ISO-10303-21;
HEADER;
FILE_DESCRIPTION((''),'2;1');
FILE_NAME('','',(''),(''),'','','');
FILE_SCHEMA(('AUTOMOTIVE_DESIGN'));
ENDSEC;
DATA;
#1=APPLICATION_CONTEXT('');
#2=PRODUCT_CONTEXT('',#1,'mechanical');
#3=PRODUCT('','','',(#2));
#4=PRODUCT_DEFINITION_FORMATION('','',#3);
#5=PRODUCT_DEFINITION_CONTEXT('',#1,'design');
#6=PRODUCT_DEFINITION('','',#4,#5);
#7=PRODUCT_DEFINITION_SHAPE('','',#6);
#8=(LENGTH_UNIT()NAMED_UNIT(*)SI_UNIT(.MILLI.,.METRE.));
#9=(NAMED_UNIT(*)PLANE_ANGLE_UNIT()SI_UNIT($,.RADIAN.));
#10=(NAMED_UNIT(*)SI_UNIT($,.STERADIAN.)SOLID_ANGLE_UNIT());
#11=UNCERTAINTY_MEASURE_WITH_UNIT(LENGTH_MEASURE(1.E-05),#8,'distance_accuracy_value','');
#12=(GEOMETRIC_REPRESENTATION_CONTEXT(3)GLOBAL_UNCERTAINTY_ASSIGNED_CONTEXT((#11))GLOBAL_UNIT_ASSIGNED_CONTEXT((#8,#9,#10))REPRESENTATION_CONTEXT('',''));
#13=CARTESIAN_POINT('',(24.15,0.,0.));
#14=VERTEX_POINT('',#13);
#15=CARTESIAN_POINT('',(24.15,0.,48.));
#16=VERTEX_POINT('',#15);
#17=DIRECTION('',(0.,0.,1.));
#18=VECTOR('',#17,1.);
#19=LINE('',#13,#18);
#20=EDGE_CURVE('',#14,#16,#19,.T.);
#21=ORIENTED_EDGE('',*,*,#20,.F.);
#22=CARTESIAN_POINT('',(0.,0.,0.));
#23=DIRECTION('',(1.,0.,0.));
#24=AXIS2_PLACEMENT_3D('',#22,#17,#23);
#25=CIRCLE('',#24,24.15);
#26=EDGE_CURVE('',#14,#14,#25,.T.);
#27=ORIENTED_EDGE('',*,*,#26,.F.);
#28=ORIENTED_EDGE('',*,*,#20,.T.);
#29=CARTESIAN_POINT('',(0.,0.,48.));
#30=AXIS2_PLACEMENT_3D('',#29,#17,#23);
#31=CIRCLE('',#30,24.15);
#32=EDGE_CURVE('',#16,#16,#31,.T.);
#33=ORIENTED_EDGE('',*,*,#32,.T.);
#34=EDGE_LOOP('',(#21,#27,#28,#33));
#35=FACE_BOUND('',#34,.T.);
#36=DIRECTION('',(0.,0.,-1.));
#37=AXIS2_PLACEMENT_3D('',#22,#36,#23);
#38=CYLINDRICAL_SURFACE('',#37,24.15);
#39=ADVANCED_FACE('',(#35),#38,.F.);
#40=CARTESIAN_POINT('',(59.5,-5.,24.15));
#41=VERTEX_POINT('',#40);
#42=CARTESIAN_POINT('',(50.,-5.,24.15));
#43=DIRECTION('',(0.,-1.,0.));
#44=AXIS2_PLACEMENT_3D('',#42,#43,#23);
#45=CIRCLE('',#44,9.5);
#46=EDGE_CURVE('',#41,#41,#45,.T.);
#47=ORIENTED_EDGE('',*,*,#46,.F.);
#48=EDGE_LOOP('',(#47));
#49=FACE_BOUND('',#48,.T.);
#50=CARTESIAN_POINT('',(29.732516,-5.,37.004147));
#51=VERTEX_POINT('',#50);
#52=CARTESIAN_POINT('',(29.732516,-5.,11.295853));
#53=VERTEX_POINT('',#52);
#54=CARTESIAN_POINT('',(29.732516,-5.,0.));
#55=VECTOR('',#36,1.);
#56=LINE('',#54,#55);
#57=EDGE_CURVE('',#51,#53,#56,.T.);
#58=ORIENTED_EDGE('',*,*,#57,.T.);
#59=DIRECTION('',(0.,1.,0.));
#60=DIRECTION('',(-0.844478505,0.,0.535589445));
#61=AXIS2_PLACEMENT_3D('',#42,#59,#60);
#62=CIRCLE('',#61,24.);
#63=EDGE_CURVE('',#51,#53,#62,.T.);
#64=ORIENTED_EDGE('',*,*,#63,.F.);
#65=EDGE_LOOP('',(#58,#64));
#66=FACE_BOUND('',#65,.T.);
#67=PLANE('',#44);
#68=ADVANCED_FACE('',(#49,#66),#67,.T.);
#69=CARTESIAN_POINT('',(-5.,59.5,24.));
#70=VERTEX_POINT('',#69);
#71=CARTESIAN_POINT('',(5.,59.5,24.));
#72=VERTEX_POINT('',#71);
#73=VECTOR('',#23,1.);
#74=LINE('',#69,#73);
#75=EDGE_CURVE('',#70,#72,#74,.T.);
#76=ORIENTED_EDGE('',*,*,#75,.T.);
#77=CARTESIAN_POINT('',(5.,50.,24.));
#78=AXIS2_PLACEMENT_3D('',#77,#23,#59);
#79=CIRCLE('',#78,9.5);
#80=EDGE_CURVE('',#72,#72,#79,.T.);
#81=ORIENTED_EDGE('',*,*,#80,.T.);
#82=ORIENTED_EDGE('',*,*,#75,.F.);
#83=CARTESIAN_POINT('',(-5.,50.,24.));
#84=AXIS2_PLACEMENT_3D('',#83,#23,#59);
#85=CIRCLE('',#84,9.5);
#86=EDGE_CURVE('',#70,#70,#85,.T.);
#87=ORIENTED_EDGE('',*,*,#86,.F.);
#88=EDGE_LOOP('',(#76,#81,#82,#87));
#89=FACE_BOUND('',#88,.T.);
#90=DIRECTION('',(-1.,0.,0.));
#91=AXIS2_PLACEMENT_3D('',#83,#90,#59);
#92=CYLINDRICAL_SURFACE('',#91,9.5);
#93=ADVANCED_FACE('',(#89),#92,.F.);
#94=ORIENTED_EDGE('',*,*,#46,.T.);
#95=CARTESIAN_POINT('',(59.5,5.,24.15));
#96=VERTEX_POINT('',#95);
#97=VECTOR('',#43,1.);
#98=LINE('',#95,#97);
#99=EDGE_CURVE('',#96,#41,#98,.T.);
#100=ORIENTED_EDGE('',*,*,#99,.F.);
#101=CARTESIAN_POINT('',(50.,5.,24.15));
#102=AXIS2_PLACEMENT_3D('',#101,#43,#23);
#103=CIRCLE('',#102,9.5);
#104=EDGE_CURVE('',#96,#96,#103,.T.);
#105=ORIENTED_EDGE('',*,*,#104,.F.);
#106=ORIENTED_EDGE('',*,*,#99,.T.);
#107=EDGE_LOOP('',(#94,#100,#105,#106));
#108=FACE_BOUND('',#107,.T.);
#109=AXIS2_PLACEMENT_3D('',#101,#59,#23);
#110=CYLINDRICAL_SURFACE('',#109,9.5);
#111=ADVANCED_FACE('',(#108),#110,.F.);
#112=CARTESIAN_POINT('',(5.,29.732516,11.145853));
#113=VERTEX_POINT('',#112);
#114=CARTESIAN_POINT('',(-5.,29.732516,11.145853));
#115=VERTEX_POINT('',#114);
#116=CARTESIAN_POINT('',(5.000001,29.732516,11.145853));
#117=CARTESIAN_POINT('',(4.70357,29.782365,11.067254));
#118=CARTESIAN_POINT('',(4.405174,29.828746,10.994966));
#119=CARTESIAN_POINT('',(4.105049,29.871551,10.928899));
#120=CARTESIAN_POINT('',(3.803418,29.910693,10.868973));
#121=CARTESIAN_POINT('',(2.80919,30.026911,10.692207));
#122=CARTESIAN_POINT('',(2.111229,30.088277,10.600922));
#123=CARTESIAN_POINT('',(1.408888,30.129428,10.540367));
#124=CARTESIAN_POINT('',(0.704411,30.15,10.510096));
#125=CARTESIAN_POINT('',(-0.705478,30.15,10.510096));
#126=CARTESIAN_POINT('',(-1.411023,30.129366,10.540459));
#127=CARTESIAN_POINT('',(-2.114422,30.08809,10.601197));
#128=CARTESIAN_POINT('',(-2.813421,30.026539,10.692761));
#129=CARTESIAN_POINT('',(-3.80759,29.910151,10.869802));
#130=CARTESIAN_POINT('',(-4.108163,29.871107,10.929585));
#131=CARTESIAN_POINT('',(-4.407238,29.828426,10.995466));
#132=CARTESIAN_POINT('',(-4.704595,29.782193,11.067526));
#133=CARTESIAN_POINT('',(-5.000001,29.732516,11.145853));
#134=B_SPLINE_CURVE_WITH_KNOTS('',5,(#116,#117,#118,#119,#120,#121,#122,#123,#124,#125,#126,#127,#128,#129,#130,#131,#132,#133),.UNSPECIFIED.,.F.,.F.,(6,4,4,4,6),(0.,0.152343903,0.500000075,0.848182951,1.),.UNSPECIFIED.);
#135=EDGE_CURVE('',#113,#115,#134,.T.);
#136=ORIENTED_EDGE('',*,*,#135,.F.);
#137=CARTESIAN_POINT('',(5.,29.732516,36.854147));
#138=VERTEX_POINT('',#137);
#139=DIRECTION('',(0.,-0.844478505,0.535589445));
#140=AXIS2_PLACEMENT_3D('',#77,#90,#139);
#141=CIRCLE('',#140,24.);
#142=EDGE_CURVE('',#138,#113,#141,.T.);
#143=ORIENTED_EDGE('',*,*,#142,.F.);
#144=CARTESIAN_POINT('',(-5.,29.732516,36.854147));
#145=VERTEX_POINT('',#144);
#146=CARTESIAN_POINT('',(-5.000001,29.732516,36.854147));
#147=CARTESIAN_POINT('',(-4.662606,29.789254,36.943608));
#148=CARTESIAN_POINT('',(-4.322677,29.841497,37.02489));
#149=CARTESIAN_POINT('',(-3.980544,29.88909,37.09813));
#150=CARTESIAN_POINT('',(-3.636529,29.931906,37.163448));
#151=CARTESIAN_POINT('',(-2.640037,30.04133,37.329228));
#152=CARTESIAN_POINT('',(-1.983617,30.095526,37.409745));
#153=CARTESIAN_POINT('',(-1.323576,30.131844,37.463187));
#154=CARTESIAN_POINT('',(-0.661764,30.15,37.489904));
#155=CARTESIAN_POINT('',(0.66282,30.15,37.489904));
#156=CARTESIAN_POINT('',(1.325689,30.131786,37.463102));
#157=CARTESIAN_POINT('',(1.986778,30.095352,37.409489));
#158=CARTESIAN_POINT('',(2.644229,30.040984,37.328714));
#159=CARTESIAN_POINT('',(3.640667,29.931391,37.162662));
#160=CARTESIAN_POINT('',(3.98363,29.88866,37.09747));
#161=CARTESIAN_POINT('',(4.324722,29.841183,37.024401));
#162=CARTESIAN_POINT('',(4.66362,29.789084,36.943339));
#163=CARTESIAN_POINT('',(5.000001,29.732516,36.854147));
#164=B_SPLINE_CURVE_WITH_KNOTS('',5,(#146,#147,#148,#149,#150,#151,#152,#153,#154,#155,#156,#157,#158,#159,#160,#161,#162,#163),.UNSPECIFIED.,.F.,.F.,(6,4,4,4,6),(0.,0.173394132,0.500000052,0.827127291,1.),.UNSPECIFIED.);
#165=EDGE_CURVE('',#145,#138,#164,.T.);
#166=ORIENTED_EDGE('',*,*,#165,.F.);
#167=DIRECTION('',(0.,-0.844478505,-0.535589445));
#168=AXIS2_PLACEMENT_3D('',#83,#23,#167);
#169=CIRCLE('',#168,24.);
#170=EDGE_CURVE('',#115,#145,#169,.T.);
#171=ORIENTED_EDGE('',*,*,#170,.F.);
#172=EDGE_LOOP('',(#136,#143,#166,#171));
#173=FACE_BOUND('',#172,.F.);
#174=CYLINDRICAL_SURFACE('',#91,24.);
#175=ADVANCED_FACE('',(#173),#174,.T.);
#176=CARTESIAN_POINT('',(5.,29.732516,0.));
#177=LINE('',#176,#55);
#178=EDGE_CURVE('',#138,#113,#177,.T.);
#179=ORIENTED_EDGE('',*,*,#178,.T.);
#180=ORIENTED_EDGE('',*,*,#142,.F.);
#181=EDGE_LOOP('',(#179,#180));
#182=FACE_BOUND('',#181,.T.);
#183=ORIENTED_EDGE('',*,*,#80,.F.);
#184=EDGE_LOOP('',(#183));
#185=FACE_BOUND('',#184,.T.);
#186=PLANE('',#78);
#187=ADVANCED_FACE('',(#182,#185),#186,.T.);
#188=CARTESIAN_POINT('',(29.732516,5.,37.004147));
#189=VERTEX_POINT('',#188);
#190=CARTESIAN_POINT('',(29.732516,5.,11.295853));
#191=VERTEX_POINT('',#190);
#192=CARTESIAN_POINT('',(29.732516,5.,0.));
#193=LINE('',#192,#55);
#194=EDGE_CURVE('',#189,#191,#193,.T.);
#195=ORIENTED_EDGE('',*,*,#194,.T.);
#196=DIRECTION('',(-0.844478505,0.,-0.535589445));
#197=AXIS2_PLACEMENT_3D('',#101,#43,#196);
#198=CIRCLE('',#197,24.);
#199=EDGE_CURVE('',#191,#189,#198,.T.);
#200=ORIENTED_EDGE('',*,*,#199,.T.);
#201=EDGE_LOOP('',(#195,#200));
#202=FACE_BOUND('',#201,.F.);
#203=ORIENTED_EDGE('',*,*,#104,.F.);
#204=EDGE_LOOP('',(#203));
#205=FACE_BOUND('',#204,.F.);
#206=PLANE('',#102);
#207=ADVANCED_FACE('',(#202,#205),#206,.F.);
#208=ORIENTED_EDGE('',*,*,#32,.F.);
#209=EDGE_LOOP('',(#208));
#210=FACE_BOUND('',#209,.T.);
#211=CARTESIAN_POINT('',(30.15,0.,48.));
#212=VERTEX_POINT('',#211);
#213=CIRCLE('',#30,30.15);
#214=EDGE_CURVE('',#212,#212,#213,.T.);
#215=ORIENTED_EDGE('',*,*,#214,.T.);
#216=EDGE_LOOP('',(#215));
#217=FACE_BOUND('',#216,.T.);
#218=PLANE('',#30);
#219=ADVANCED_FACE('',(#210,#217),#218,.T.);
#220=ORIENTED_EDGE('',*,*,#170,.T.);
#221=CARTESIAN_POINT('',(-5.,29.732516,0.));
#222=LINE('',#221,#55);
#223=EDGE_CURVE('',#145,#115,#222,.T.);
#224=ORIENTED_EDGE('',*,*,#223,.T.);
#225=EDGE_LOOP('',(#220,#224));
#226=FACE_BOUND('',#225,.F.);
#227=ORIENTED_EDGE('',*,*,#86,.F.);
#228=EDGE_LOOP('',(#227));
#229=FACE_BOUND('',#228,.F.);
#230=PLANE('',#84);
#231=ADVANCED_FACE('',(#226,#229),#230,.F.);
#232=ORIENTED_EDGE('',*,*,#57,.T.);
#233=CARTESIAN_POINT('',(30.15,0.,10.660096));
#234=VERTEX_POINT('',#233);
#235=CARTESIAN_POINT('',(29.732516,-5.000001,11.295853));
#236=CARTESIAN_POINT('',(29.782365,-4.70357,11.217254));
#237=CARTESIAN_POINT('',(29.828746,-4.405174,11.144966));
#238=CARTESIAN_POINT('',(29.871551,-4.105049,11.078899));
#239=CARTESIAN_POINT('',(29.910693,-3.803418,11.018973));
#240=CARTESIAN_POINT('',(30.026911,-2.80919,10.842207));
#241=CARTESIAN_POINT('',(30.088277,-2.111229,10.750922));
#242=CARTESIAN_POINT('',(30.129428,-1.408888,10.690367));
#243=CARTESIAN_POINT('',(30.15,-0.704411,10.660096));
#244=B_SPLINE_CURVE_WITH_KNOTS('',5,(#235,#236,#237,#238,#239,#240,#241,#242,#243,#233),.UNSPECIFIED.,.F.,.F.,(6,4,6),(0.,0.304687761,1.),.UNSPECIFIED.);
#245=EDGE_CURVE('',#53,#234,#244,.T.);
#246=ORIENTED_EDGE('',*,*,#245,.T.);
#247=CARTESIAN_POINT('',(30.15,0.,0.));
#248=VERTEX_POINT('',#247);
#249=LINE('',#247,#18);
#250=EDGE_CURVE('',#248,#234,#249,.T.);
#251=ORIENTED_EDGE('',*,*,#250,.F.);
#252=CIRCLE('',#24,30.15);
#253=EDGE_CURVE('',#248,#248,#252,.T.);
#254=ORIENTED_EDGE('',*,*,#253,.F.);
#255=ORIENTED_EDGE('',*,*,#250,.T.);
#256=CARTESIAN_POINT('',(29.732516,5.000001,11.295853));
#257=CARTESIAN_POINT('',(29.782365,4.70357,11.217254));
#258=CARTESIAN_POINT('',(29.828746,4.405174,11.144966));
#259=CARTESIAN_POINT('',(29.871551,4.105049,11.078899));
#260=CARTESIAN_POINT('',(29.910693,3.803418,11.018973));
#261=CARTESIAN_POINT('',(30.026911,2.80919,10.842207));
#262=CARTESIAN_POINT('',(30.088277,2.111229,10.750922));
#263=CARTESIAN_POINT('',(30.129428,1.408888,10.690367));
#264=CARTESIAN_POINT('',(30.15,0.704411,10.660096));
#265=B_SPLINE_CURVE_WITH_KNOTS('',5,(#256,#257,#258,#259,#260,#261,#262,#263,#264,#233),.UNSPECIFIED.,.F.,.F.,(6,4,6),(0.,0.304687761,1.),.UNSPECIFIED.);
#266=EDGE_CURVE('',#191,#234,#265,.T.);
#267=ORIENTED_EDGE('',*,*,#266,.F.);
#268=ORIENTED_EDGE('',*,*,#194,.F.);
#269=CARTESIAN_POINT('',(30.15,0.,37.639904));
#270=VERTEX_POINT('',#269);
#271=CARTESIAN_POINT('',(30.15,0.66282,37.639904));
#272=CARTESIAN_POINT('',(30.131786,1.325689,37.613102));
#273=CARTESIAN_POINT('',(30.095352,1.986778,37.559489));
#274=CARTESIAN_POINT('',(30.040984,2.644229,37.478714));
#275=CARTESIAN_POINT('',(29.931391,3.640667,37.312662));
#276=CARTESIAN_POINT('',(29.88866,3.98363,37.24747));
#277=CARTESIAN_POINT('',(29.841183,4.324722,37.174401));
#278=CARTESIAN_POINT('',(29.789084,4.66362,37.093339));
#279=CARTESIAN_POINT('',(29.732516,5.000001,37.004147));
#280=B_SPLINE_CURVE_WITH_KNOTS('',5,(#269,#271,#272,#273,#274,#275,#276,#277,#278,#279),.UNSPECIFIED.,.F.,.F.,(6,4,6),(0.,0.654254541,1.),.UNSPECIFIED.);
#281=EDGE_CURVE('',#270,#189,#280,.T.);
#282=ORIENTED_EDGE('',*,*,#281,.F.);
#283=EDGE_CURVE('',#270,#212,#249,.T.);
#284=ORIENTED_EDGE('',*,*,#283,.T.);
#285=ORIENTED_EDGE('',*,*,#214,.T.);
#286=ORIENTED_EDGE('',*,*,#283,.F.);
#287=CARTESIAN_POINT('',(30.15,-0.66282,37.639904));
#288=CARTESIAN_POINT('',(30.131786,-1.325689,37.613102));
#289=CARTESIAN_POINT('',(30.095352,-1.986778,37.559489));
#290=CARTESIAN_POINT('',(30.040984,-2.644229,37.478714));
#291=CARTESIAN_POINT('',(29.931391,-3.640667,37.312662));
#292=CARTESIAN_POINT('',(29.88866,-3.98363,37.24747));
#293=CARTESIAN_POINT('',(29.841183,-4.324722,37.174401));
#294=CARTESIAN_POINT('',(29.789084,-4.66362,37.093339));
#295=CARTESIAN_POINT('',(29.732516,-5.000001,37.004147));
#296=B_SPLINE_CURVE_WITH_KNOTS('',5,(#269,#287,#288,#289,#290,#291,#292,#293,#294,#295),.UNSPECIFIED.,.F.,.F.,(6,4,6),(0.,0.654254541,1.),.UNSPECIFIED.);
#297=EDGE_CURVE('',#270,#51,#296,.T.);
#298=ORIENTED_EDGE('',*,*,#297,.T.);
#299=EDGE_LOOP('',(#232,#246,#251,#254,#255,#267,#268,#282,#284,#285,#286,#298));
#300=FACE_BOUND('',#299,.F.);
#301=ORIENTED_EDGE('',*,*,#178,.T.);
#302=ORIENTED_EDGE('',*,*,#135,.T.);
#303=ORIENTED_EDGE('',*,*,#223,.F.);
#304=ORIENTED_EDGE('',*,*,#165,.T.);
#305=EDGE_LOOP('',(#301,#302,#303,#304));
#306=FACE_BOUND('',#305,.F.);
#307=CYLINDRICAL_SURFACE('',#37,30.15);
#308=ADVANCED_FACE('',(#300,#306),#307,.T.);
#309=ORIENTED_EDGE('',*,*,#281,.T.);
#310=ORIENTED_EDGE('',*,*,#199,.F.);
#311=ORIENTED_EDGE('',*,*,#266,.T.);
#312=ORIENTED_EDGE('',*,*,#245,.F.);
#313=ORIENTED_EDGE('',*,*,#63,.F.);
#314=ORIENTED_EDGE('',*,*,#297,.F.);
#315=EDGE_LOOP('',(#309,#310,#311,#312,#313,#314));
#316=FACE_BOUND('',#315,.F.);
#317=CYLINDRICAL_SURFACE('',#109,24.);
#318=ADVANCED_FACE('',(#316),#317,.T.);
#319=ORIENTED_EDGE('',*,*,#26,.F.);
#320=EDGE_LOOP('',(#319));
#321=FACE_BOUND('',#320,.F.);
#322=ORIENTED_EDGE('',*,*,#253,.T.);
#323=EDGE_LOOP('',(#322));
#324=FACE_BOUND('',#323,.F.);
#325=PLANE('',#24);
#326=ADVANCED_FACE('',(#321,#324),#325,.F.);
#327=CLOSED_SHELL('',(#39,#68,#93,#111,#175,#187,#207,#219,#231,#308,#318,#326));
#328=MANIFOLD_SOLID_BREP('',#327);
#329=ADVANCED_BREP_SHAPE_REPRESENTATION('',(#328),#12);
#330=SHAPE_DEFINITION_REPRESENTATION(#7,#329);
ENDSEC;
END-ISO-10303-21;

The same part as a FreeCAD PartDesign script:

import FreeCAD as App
import Part
import Sketcher

V = App.Vector

doc = App.newDocument("Part")
body = doc.addObject("PartDesign::Body", "Body")

sketch1 = body.newObject("Sketcher::SketchObject", "Sketch")
sketch1.AttachmentSupport = (doc.getObject("XY_Plane"), [""])
sketch1.MapMode = "FlatFace"
sketch1.addGeometry([
    Part.Circle(V(0, 0, 0), V(0, 0, 1), 30),
    Part.Circle(V(0, 0, 0), V(0, 0, 1), 24),
], False)
sketch1.addConstraint([
    Sketcher.Constraint("Coincident", 0, 3, -1, 1),
    Sketcher.Constraint("Coincident", 1, 3, -1, 1),
    Sketcher.Constraint("Diameter", 0, 60.3),
    Sketcher.Constraint("Diameter", 1, 48.3),
])
pad1 = body.newObject("PartDesign::Pad", "Pad")
pad1.Profile = sketch1
pad1.Length = 48

sketch2 = body.newObject("Sketcher::SketchObject", "Sketch001")
sketch2.AttachmentSupport = (doc.getObject("XZ_Plane"), [""])
sketch2.MapMode = "FlatFace"
sketch2.AttachmentOffset = App.Placement(V(0, 0, -5), App.Rotation())
sketch2.addGeometry([
    Part.Circle(V(50, 24, 0), V(0, 0, 1), 24),
    Part.Circle(V(50, 24, 0), V(0, 0, 1), 10),
], False)
sketch2.addConstraint([
    Sketcher.Constraint("Coincident", 1, 3, 0, 3),
    Sketcher.Constraint("Diameter", 0, 48.0),
    Sketcher.Constraint("Diameter", 1, 19.0),
    Sketcher.Constraint("DistanceX", -1, 1, 0, 3, 50.0),
    Sketcher.Constraint("DistanceY", -1, 1, 0, 3, 24.15),
])
pad2 = body.newObject("PartDesign::Pad", "Pad001")
pad2.Profile = sketch2
pad2.Length = 10

sketch3 = body.newObject("Sketcher::SketchObject", "Sketch002")
sketch3.AttachmentSupport = (doc.getObject("YZ_Plane"), [""])
sketch3.MapMode = "FlatFace"
sketch3.AttachmentOffset = App.Placement(V(0, 0, -5), App.Rotation())
sketch3.addGeometry([
    Part.Circle(V(50, 24, 0), V(0, 0, 1), 24),
    Part.Circle(V(50, 24, 0), V(0, 0, 1), 10),
], False)
sketch3.addConstraint([
    Sketcher.Constraint("Coincident", 1, 3, 0, 3),
    Sketcher.Constraint("Diameter", 0, 48.0),
    Sketcher.Constraint("Diameter", 1, 19.0),
    Sketcher.Constraint("DistanceX", -1, 1, 0, 3, 50.0),
    Sketcher.Constraint("DistanceY", -1, 1, 0, 3, 24.0),
])
pad3 = body.newObject("PartDesign::Pad", "Pad002")
pad3.Profile = sketch3
pad3.Length = 10

doc.recompute()
